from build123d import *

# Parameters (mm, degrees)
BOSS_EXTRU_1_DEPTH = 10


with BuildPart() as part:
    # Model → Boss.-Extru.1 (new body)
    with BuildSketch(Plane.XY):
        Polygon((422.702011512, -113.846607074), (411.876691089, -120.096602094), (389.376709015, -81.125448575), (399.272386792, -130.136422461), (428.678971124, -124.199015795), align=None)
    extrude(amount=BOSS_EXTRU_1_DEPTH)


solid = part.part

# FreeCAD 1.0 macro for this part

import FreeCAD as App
import Part
import Sketcher


def add_polygon(sketch, points):
    """Adds a closed chain of lines whose ends are joined by coincident constraints."""
    first, n = sketch.GeometryCount, len(points)
    for a, b in zip(points, points[1:] + points[:1]):
        sketch.addGeometry(Part.LineSegment(App.Vector(*a, 0), App.Vector(*b, 0)), False)
    for i in range(n):
        sketch.addConstraint(Sketcher.Constraint("Coincident", first + i, 2, first + (i + 1) % n, 1))

doc = App.newDocument("Part")
body = doc.addObject("PartDesign::Body", "Body")

sketch1 = body.newObject("Sketcher::SketchObject", "Sketch")
sketch1.AttachmentSupport = (doc.getObject("XY_Plane"), [""])
sketch1.MapMode = "FlatFace"
add_polygon(sketch1, [(423, -114), (412, -120), (389, -81), (399, -130), (429, -124)])
sketch1.addConstraint([
    Sketcher.Constraint("Perpendicular", 0, 1),
    Sketcher.Constraint("Perpendicular", 2, 3),
    Sketcher.Constraint("Parallel", 1, 4),
    Sketcher.Constraint("Distance", 1, 45.0),
    Sketcher.Constraint("Distance", 2, 50.0),
    Sketcher.Constraint("Distance", 3, 30.0),
    Sketcher.Constraint("Distance", 0, 12.5),
    Sketcher.Constraint("DistanceX", -1, 1, 0, 2, 411.876691),
    Sketcher.Constraint("DistanceX", -1, 1, 1, 2, 389.376709),
    Sketcher.Constraint("DistanceY", 1, 2, -1, 1, 81.125449),
])
pad1 = body.newObject("PartDesign::Pad", "Pad")
pad1.Profile = sketch1
pad1.Length = 10

doc.recompute()
